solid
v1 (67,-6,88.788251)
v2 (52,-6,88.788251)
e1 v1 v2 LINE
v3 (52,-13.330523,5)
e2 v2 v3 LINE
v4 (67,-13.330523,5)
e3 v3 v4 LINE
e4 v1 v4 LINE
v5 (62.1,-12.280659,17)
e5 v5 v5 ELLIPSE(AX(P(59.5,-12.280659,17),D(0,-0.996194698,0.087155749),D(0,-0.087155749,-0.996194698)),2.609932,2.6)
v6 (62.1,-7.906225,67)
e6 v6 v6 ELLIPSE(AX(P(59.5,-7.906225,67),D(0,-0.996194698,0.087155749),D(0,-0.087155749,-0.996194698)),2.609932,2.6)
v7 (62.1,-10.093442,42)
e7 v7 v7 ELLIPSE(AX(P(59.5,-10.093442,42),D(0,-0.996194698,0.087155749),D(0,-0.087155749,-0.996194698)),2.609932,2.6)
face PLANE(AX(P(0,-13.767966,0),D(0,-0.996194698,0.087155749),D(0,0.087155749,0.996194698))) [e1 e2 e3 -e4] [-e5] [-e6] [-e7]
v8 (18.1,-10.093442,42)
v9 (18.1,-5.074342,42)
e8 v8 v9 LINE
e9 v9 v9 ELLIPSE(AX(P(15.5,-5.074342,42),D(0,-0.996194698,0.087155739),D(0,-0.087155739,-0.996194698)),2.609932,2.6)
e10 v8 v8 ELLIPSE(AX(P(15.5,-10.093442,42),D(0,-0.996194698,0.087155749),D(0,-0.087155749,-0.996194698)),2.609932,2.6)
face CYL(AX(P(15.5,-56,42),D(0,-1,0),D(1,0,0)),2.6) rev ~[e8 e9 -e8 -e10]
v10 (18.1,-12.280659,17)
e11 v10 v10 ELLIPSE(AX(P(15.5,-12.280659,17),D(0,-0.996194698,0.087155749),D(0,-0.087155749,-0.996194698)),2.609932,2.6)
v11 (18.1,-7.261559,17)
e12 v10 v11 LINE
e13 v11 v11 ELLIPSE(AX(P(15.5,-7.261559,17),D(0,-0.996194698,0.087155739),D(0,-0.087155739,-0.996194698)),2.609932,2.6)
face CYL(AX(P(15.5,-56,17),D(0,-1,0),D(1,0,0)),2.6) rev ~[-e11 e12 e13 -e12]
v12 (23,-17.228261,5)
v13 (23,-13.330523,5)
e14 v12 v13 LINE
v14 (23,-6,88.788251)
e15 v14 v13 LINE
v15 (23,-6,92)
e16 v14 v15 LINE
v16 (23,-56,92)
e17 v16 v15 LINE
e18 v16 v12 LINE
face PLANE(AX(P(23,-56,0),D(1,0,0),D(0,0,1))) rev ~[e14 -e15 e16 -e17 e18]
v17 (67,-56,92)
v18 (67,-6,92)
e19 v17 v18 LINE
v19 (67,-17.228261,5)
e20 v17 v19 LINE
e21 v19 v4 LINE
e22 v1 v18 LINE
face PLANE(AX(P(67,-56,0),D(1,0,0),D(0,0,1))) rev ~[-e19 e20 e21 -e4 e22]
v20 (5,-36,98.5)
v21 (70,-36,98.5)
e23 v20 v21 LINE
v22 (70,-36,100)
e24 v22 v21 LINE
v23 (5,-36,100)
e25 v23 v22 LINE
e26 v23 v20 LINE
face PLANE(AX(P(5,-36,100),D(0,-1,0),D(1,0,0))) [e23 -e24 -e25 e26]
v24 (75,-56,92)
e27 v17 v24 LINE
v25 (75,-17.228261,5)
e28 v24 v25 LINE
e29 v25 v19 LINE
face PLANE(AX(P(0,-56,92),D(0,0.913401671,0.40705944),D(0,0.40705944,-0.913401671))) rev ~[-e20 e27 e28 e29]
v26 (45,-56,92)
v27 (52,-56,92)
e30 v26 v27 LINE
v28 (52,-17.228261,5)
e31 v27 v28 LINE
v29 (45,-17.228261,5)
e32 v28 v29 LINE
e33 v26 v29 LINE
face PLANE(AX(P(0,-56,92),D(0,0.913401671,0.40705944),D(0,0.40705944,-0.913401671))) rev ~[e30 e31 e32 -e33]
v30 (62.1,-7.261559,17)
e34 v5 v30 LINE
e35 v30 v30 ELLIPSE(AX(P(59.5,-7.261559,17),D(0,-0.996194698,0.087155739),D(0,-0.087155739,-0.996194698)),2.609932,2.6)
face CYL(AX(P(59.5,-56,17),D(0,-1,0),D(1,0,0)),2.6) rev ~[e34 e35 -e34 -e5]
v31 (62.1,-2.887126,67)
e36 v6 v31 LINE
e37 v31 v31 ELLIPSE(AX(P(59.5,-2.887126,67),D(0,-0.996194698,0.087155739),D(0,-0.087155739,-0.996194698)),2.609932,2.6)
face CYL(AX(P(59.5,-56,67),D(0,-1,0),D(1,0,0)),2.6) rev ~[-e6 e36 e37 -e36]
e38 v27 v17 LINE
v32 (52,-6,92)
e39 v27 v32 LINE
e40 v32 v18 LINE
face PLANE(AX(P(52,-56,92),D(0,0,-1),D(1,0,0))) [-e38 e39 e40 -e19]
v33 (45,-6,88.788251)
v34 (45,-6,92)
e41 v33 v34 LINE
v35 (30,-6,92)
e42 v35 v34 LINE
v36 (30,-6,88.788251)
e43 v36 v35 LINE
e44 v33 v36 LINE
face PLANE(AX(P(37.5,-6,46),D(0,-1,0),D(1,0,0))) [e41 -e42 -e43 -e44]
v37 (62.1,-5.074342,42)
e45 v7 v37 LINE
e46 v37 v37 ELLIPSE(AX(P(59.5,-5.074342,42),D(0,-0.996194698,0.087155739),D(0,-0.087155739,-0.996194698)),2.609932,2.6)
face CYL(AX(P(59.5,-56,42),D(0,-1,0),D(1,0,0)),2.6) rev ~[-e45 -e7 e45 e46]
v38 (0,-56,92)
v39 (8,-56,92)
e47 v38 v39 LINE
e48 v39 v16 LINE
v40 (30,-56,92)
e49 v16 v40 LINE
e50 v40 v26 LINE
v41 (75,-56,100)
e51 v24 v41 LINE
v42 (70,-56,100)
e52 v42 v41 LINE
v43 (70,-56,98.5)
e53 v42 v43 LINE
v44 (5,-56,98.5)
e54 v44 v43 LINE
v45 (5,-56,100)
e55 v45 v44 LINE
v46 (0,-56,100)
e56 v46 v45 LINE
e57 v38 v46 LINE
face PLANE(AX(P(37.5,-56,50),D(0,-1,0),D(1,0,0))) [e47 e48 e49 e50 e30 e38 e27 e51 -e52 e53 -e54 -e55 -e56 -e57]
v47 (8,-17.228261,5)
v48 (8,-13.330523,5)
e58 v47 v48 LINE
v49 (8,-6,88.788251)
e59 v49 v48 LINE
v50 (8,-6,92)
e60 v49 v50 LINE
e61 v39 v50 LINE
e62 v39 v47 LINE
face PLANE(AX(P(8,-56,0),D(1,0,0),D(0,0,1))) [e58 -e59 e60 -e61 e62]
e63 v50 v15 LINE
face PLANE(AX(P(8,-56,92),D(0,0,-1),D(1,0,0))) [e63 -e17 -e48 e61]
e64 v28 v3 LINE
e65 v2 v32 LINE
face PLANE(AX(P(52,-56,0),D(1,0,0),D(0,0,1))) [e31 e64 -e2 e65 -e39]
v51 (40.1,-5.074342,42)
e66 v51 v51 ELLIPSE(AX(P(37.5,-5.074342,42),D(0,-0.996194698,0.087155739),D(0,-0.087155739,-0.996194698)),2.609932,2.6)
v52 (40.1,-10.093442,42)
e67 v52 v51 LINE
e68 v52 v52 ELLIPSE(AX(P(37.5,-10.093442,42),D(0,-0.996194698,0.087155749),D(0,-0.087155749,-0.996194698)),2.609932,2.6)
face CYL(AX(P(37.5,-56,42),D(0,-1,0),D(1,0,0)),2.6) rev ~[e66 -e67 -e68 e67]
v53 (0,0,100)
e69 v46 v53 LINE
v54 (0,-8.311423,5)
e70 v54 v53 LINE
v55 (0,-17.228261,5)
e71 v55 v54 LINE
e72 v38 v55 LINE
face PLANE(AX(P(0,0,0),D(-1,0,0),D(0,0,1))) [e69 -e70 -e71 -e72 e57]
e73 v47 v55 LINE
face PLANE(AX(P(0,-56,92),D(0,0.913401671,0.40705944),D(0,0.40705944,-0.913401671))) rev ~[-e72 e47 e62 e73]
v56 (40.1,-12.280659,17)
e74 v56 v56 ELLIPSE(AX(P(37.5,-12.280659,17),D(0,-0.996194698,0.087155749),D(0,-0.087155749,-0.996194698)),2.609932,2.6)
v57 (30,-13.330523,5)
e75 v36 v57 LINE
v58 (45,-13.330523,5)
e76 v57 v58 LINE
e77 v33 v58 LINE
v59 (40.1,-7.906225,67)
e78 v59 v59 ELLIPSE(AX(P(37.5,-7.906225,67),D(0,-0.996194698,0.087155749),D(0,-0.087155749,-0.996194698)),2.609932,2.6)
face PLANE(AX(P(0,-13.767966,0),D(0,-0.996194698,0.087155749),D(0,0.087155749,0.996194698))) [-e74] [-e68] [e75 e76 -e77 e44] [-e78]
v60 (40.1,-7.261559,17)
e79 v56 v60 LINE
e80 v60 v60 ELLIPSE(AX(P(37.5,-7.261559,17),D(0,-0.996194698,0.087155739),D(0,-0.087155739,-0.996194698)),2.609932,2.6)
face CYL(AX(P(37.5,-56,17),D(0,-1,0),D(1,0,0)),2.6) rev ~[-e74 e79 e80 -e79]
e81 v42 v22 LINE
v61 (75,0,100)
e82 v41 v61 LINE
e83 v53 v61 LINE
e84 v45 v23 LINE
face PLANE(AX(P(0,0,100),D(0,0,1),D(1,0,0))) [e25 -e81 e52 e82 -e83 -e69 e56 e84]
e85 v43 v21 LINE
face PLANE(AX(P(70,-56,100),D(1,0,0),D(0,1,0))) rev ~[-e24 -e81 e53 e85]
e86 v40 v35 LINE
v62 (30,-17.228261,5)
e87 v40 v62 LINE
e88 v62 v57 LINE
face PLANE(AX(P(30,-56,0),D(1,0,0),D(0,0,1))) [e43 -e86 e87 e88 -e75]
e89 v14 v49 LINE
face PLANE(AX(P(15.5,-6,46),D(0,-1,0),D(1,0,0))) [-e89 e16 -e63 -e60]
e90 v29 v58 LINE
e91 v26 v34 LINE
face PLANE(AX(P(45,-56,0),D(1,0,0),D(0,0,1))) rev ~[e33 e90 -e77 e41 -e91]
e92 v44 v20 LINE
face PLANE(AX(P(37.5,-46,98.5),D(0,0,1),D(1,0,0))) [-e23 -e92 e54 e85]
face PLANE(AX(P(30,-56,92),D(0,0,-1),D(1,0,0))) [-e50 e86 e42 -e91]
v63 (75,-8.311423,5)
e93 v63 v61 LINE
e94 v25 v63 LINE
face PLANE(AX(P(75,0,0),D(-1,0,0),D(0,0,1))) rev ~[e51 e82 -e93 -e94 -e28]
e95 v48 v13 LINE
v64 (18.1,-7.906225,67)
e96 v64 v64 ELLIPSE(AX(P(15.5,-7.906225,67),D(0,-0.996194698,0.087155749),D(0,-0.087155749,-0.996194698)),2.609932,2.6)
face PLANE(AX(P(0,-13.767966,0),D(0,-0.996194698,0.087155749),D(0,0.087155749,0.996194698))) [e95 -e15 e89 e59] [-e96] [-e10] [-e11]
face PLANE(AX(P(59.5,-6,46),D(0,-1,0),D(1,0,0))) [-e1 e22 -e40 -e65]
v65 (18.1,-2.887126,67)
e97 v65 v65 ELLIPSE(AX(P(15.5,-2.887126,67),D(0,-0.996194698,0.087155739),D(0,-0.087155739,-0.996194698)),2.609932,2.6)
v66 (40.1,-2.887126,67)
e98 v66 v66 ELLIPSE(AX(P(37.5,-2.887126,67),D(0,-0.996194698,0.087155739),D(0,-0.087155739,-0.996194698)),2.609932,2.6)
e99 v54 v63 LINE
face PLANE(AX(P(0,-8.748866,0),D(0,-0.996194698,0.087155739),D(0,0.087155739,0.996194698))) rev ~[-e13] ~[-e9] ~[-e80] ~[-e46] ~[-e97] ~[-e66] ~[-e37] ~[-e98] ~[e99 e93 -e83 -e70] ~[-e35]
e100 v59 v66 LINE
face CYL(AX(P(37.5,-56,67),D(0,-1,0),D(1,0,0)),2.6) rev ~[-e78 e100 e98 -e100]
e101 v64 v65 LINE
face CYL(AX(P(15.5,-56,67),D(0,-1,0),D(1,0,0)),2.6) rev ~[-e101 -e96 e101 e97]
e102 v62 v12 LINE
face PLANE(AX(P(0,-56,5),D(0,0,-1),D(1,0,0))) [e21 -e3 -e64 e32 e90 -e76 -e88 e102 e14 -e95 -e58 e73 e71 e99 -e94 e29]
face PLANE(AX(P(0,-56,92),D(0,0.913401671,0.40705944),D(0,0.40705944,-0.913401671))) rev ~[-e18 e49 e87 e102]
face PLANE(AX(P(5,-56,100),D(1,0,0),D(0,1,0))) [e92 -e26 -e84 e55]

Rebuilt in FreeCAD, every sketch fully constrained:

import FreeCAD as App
import Part
import Sketcher
from FreeCAD import Vector
Q = App.Units.Quantity

doc = App.newDocument("Part")
body = doc.addObject("PartDesign::Body", "Body")

# Sketch on XZ plane
sketch1 = body.newObject("Sketcher::SketchObject", "Sketch")
sketch1.AttachmentSupport = (doc.getObject("XZ_Plane"), [""])
sketch1.MapMode = "FlatFace"
sketch1.addGeometry([
    Part.LineSegment(Vector(0, 100, 0), Vector(0, 0, 0)),
    Part.LineSegment(Vector(0, 0, 0), Vector(75, 0, 0)),
    Part.LineSegment(Vector(75, 0, 0), Vector(75, 100, 0)),
    Part.LineSegment(Vector(75, 100, 0), Vector(0, 100, 0)),
], False)
sketch1.addConstraint([
    Sketcher.Constraint("Coincident", 0, 2, 1, 1),
    Sketcher.Constraint("Coincident", 1, 2, 2, 1),
    Sketcher.Constraint("Coincident", 2, 2, 3, 1),
    Sketcher.Constraint("Coincident", 3, 2, 0, 1),
    Sketcher.Constraint("Vertical", 0),
    Sketcher.Constraint("Horizontal", 1),
    Sketcher.Constraint("Vertical", 2),
    Sketcher.Constraint("Horizontal", 3),
    Sketcher.Constraint("Coincident", 0, 2, -1, 1),
    Sketcher.Constraint("DistanceX", 1, 1, 1, 2, 75.0),
    Sketcher.Constraint("DistanceY", 0, 2, 0, 1, 100.0),
])
pad1 = body.newObject("PartDesign::Pad", "Pad")
pad1.Profile = sketch1
pad1.Length = 56

# Sketch on YZ plane
sketch2 = body.newObject("Sketcher::SketchObject", "Sketch001")
sketch2.AttachmentSupport = (doc.getObject("YZ_Plane"), [""])
sketch2.MapMode = "FlatFace"
sketch2.addGeometry([
    Part.LineSegment(Vector(-56, 92, 0), Vector(-15, 0, 0)),
    Part.LineSegment(Vector(-15, 0, 0), Vector(-56, 0, 0)),
    Part.LineSegment(Vector(-56, 0, 0), Vector(-56, 92, 0)),
], False)
sketch2.addConstraint([
    Sketcher.Constraint("Coincident", 0, 2, 1, 1),
    Sketcher.Constraint("Coincident", 1, 2, 2, 1),
    Sketcher.Constraint("Coincident", 2, 2, 0, 1),
    Sketcher.Constraint("Horizontal", 1),
    Sketcher.Constraint("Vertical", 2),
    Sketcher.Constraint("PointOnObject", 0, 2, -1),
    Sketcher.Constraint("DistanceX", 1, 2, 1, 1, 41.0),
    Sketcher.Constraint("DistanceY", 2, 1, 2, 2, 92.0),
    Sketcher.Constraint("DistanceX", 0, 2, -1, 1, 15.0),
])
pocket1 = body.newObject("PartDesign::Pocket", "Pocket")
pocket1.Profile = sketch2
pocket1.Type = "ThroughAll"
pocket1.Reversed = True

# Sketch on XZ plane
sketch3 = body.newObject("Sketcher::SketchObject", "Sketch002")
sketch3.AttachmentSupport = (doc.getObject("XZ_Plane"), [""])
sketch3.MapMode = "FlatFace"
sketch3.AttachmentOffset = App.Placement(Vector(0, 0, 56), App.Rotation())
sketch3.addGeometry([
    Part.LineSegment(Vector(8, 92, 0), Vector(8, 0, 0)),  # 0
    Part.LineSegment(Vector(8, 0, 0), Vector(23, 0, 0)),  # 1
    Part.LineSegment(Vector(23, 0, 0), Vector(23, 92, 0)),  # 2
    Part.LineSegment(Vector(23, 92, 0), Vector(8, 92, 0)),  # 3
    Part.LineSegment(Vector(30, 92, 0), Vector(30, 0, 0)),  # 4
    Part.LineSegment(Vector(30, 0, 0), Vector(45, 0, 0)),  # 5
    Part.LineSegment(Vector(45, 0, 0), Vector(45, 92, 0)),  # 6
    Part.LineSegment(Vector(45, 92, 0), Vector(30, 92, 0)),  # 7
    Part.LineSegment(Vector(52, 92, 0), Vector(52, 0, 0)),  # 8
    Part.LineSegment(Vector(52, 0, 0), Vector(67, 0, 0)),  # 9
    Part.LineSegment(Vector(67, 0, 0), Vector(67, 92, 0)),  # 10
    Part.LineSegment(Vector(67, 92, 0), Vector(52, 92, 0)),  # 11
], False)
sketch3.addConstraint([
    Sketcher.Constraint("Coincident", 0, 2, 1, 1),
    Sketcher.Constraint("Coincident", 1, 2, 2, 1),
    Sketcher.Constraint("Coincident", 2, 2, 3, 1),
    Sketcher.Constraint("Coincident", 3, 2, 0, 1),
    Sketcher.Constraint("Coincident", 4, 2, 5, 1),
    Sketcher.Constraint("Coincident", 5, 2, 6, 1),
    Sketcher.Constraint("Coincident", 6, 2, 7, 1),
    Sketcher.Constraint("Coincident", 7, 2, 4, 1),
    Sketcher.Constraint("Coincident", 8, 2, 9, 1),
    Sketcher.Constraint("Coincident", 9, 2, 10, 1),
    Sketcher.Constraint("Coincident", 10, 2, 11, 1),
    Sketcher.Constraint("Coincident", 11, 2, 8, 1),
    Sketcher.Constraint("Vertical", 0),
    Sketcher.Constraint("Horizontal", 1),
    Sketcher.Constraint("Vertical", 2),
    Sketcher.Constraint("Horizontal", 3),
    Sketcher.Constraint("Vertical", 4),
    Sketcher.Constraint("Horizontal", 5),
    Sketcher.Constraint("Vertical", 6),
    Sketcher.Constraint("Horizontal", 7),
    Sketcher.Constraint("Vertical", 8),
    Sketcher.Constraint("Horizontal", 9),
    Sketcher.Constraint("Vertical", 10),
    Sketcher.Constraint("Horizontal", 11),
    Sketcher.Constraint("PointOnObject", 0, 2, -1),
    Sketcher.Constraint("PointOnObject", 4, 2, -1),
    Sketcher.Constraint("PointOnObject", 8, 2, -1),
    Sketcher.Constraint("Horizontal", 3, 2, 6, 2),
    Sketcher.Constraint("Horizontal", 7, 2, 10, 2),
    Sketcher.Constraint("Equal", 3, 5),
    Sketcher.Constraint("Equal", 7, 9),
    Sketcher.Constraint("DistanceX", 1, 1, 1, 2, 15.0),
    Sketcher.Constraint("DistanceY", 0, 2, 0, 1, 92.0),
    Sketcher.Constraint("DistanceX", -1, 1, 0, 2, 8.0),
    Sketcher.Constraint("DistanceX", -1, 1, 4, 2, 30.0),
    Sketcher.Constraint("DistanceX", -1, 1, 8, 2, 52.0),
])
pocket2 = body.newObject("PartDesign::Pocket", "Pocket001")
pocket2.Profile = sketch3
pocket2.Length = 50

# Sketch on XY plane
sketch4 = body.newObject("Sketcher::SketchObject", "Sketch003")
sketch4.AttachmentSupport = (doc.getObject("XY_Plane"), [""])
sketch4.MapMode = "FlatFace"
sketch4.AttachmentOffset = App.Placement(Vector(0, 0, 100), App.Rotation())
sketch4.addGeometry([
    Part.LineSegment(Vector(5, -36, 0), Vector(5, -56, 0)),
    Part.LineSegment(Vector(5, -56, 0), Vector(70, -56, 0)),
    Part.LineSegment(Vector(70, -56, 0), Vector(70, -36, 0)),
    Part.LineSegment(Vector(70, -36, 0), Vector(5, -36, 0)),
], False)
sketch4.addConstraint([
    Sketcher.Constraint("Coincident", 0, 2, 1, 1),
    Sketcher.Constraint("Coincident", 1, 2, 2, 1),
    Sketcher.Constraint("Coincident", 2, 2, 3, 1),
    Sketcher.Constraint("Coincident", 3, 2, 0, 1),
    Sketcher.Constraint("Vertical", 0),
    Sketcher.Constraint("Horizontal", 1),
    Sketcher.Constraint("Vertical", 2),
    Sketcher.Constraint("Horizontal", 3),
    Sketcher.Constraint("DistanceX", 1, 1, 1, 2, 65.0),
    Sketcher.Constraint("DistanceY", 0, 2, 0, 1, 20.0),
    Sketcher.Constraint("DistanceX", -1, 1, 0, 2, 5.0),
    Sketcher.Constraint("DistanceY", 0, 2, -1, 1, 56.0),
])
pocket3 = body.newObject("PartDesign::Pocket", "Pocket002")
pocket3.Profile = sketch4
pocket3.Length = 1.5

# Sketch on YZ plane
sketch5 = body.newObject("Sketcher::SketchObject", "Sketch004")
sketch5.AttachmentSupport = (doc.getObject("YZ_Plane"), [""])
sketch5.MapMode = "FlatFace"
sketch5.addGeometry([
    Part.LineSegment(Vector(-9, 0, 0), Vector(0, 100, 0)),
    Part.LineSegment(Vector(0, 100, 0), Vector(0, 0, 0)),
    Part.LineSegment(Vector(0, 0, 0), Vector(-9, 0, 0)),
], False)
sketch5.addConstraint([
    Sketcher.Constraint("Coincident", 0, 2, 1, 1),
    Sketcher.Constraint("Coincident", 1, 2, 2, 1),
    Sketcher.Constraint("Coincident", 2, 2, 0, 1),
    Sketcher.Constraint("Vertical", 1),
    Sketcher.Constraint("Horizontal", 2),
    Sketcher.Constraint("Coincident", 1, 2, -1, 1),
    Sketcher.Constraint("DistanceY", 1, 2, 1, 1, 100.0),
    Sketcher.Constraint("Angle", 0, Q("85 deg")),
])
pocket4 = body.newObject("PartDesign::Pocket", "Pocket003")
pocket4.Profile = sketch5
pocket4.Type = "ThroughAll"
pocket4.Reversed = True

# Sketch on YZ plane
sketch6 = body.newObject("Sketcher::SketchObject", "Sketch005")
sketch6.AttachmentSupport = (doc.getObject("YZ_Plane"), [""])
sketch6.MapMode = "FlatFace"
sketch6.addGeometry([
    Part.LineSegment(Vector(-5, 100, 0), Vector(0, 100, 0)),
    Part.LineSegment(Vector(0, 100, 0), Vector(-9, 0, 0)),
    Part.LineSegment(Vector(-9, 0, 0), Vector(-14, 0, 0)),
    Part.LineSegment(Vector(-14, 0, 0), Vector(-5, 100, 0)),
], False)
sketch6.addConstraint([
    Sketcher.Constraint("Coincident", 0, 2, 1, 1),
    Sketcher.Constraint("Coincident", 1, 2, 2, 1),
    Sketcher.Constraint("Coincident", 2, 2, 3, 1),
    Sketcher.Constraint("Coincident", 3, 2, 0, 1),
    Sketcher.Constraint("Horizontal", 0),
    Sketcher.Constraint("Horizontal", 2),
    Sketcher.Constraint("PointOnObject", 0, 2, -2),
    Sketcher.Constraint("PointOnObject", 1, 2, -1),
    Sketcher.Constraint("Parallel", 1, 3),
    Sketcher.Constraint("Angle", 1, Q("-95 deg")),
    Sketcher.Constraint("DistanceY", -1, 1, 0, 2, 100.0),
    Sketcher.Constraint("DistanceX", 0, 1, 0, 2, 5.019099),
])
pad2 = body.newObject("PartDesign::Pad", "Pad001")
pad2.Profile = sketch6
pad2.Type = "UpToLast"

# Sketch on XZ plane
sketch7 = body.newObject("Sketcher::SketchObject", "Sketch006")
sketch7.AttachmentSupport = (doc.getObject("XZ_Plane"), [""])
sketch7.MapMode = "FlatFace"
sketch7.AttachmentOffset = App.Placement(Vector(0, 0, 56), App.Rotation())
sketch7.addGeometry([
    Part.LineSegment(Vector(0, 5, 0), Vector(0, 0, 0)),  # 0
    Part.LineSegment(Vector(0, 0, 0), Vector(75, 0, 0)),  # 1
    Part.LineSegment(Vector(75, 0, 0), Vector(75, 5, 0)),  # 2
    Part.LineSegment(Vector(75, 5, 0), Vector(0, 5, 0)),  # 3
    Part.Circle(Vector(15.5, 17, 0), Vector(0, 0, 1), 2.6),  # 4
    Part.Circle(Vector(15.5, 42, 0), Vector(0, 0, 1), 2.6),  # 5
    Part.Circle(Vector(15.5, 67, 0), Vector(0, 0, 1), 2.6),  # 6
    Part.Circle(Vector(37.5, 67, 0), Vector(0, 0, 1), 2.6),  # 7
    Part.Circle(Vector(37.5, 42, 0), Vector(0, 0, 1), 2.6),  # 8
    Part.Circle(Vector(37.5, 17, 0), Vector(0, 0, 1), 2.6),  # 9
    Part.Circle(Vector(59.5, 17, 0), Vector(0, 0, 1), 2.6),  # 10
    Part.Circle(Vector(59.5, 42, 0), Vector(0, 0, 1), 2.6),  # 11
    Part.Circle(Vector(59.5, 67, 0), Vector(0, 0, 1), 2.6),  # 12
], False)
sketch7.addConstraint([
    Sketcher.Constraint("Coincident", 0, 2, 1, 1),
    Sketcher.Constraint("Coincident", 1, 2, 2, 1),
    Sketcher.Constraint("Coincident", 2, 2, 3, 1),
    Sketcher.Constraint("Coincident", 3, 2, 0, 1),
    Sketcher.Constraint("Vertical", 0),
    Sketcher.Constraint("Horizontal", 1),
    Sketcher.Constraint("Vertical", 2),
    Sketcher.Constraint("Horizontal", 3),
    Sketcher.Constraint("Coincident", 0, 2, -1, 1),
    Sketcher.Constraint("Equal", 4, 5),
    Sketcher.Constraint("Equal", 5, 6),
    Sketcher.Constraint("Equal", 6, 7),
    Sketcher.Constraint("Equal", 7, 8),
    Sketcher.Constraint("Equal", 8, 9),
    Sketcher.Constraint("Equal", 9, 10),
    Sketcher.Constraint("Equal", 10, 11),
    Sketcher.Constraint("Equal", 11, 12),
    Sketcher.Constraint("Horizontal", 6, 3, 7, 3),
    Sketcher.Constraint("Horizontal", 5, 3, 8, 3),
    Sketcher.Constraint("Horizontal", 4, 3, 9, 3),
    Sketcher.Constraint("Horizontal", 9, 3, 10, 3),
    Sketcher.Constraint("Horizontal", 8, 3, 11, 3),
    Sketcher.Constraint("Horizontal", 7, 3, 12, 3),
    Sketcher.Constraint("Vertical", 4, 3, 5, 3),
    Sketcher.Constraint("Vertical", 5, 3, 6, 3),
    Sketcher.Constraint("Vertical", 7, 3, 8, 3),
    Sketcher.Constraint("Vertical", 8, 3, 9, 3),
    Sketcher.Constraint("Vertical", 10, 3, 11, 3),
    Sketcher.Constraint("Vertical", 11, 3, 12, 3),
    Sketcher.Constraint("Diameter", 4, 5.2),
    Sketcher.Constraint("DistanceX", 1, 1, 1, 2, 75.0),
    Sketcher.Constraint("DistanceY", 0, 2, 0, 1, 5.0),
    Sketcher.Constraint("DistanceY", -1, 1, 4, 3, 17.0),
    Sketcher.Constraint("DistanceY", -1, 1, 5, 3, 42.0),
    Sketcher.Constraint("DistanceY", -1, 1, 6, 3, 67.0),
    Sketcher.Constraint("DistanceX", 6, 3, 7, 3, 22.0),
    Sketcher.Constraint("DistanceX", 9, 3, 10, 3, 22.0),
    Sketcher.Constraint("DistanceX", -1, 1, 4, 3, 15.5),
])
pocket5 = body.newObject("PartDesign::Pocket", "Pocket004")
pocket5.Profile = sketch7
pocket5.Type = "ThroughAll"

doc.recompute()
